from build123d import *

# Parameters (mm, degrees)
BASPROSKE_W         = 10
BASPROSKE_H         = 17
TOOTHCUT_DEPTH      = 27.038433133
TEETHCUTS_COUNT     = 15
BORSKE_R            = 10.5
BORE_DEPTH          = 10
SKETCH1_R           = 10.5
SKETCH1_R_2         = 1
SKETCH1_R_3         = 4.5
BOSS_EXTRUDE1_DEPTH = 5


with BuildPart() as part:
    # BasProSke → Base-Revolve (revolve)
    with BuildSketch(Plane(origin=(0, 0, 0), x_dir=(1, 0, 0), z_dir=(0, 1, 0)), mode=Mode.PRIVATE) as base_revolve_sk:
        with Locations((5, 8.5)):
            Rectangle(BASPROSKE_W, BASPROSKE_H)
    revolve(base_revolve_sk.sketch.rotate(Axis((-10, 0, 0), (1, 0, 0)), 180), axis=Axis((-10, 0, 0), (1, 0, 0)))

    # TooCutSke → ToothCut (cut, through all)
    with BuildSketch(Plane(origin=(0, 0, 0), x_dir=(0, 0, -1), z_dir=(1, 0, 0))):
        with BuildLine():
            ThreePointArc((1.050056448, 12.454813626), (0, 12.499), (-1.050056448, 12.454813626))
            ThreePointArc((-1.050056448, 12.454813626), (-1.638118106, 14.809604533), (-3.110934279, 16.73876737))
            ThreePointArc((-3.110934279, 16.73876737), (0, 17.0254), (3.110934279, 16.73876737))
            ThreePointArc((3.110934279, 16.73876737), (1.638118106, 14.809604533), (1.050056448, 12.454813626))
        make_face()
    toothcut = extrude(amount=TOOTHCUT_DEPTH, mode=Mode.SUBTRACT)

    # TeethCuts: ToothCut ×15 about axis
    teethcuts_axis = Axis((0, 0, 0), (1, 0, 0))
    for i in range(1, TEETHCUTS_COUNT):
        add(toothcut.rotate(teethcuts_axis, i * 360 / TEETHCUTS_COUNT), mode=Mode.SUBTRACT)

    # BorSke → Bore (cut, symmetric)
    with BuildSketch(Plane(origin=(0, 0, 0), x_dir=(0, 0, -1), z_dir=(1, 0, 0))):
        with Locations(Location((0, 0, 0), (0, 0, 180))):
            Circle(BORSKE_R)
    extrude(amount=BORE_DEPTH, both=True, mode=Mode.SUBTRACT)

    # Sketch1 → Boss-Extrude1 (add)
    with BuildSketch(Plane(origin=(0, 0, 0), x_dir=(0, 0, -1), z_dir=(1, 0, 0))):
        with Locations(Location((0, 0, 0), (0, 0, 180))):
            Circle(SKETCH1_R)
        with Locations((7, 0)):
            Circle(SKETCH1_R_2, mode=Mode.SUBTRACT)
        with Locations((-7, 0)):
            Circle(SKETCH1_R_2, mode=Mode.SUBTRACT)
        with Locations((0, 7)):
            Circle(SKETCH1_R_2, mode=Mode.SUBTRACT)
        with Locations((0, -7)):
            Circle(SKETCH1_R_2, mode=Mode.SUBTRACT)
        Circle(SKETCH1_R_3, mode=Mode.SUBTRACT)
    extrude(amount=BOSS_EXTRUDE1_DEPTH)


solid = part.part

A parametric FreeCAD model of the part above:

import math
import FreeCAD as App
import Part
import Sketcher
from FreeCAD import Vector
Q = App.Units.Quantity

doc = App.newDocument("Part")
body = doc.addObject("PartDesign::Body", "Body")

# Sketch on XZ plane
sketch1 = body.newObject("Sketcher::SketchObject", "Sketch")
sketch1.AttachmentSupport = (doc.getObject("XZ_Plane"), [""])
sketch1.MapMode = "FlatFace"
sketch1.addGeometry(Part.LineSegment(Vector(0, -17, 0), Vector(0, 0, 0)), False)
sketch1.addGeometry(Part.LineSegment(Vector(0, 0, 0), Vector(10, 0, 0)), False)
sketch1.addGeometry(Part.LineSegment(Vector(10, 0, 0), Vector(10, -17, 0)), False)
sketch1.addGeometry(Part.LineSegment(Vector(10, -17, 0), Vector(0, -17, 0)), False)
sketch1.addConstraint(Sketcher.Constraint("Coincident", 0, 2, 1, 1))
sketch1.addConstraint(Sketcher.Constraint("Coincident", 1, 2, 2, 1))
sketch1.addConstraint(Sketcher.Constraint("Coincident", 2, 2, 3, 1))
sketch1.addConstraint(Sketcher.Constraint("Coincident", 3, 2, 0, 1))
sketch1.addConstraint(Sketcher.Constraint("Vertical", 0))
sketch1.addConstraint(Sketcher.Constraint("Horizontal", 1))
sketch1.addConstraint(Sketcher.Constraint("Vertical", 2))
sketch1.addConstraint(Sketcher.Constraint("Horizontal", 3))
sketch1.addConstraint(Sketcher.Constraint("Coincident", 0, 2, -1, 1))
sketch1.addConstraint(Sketcher.Constraint("DistanceX", 1, 1, 1, 2, Q("10 mm")))
sketch1.addConstraint(Sketcher.Constraint("DistanceY", 0, 1, 0, 2, Q("17 mm")))
revolution = body.newObject("PartDesign::Revolution", "Revolution")
revolution.Profile = sketch1
revolution.ReferenceAxis = (sketch1, ["H_Axis"])
revolution.Angle = 360

# Sketch on YZ plane
sketch2 = body.newObject("Sketcher::SketchObject", "Sketch001")
sketch2.AttachmentSupport = (doc.getObject("YZ_Plane"), [""])
sketch2.MapMode = "FlatFace"
sketch2.addGeometry(Part.ArcOfCircle(Part.Circle(Vector(0, 0, 0), Vector(0, 0, 1), 12.5), math.radians(-4.82), math.radians(4.82)), False)
sketch2.addGeometry(Part.ArcOfCircle(Part.Circle(Vector(12.2, -7, 0), Vector(0, 0, 1), 6), math.radians(41), math.radians(88)), False)
sketch2.addGeometry(Part.ArcOfCircle(Part.Circle(Vector(0, 0, 0), Vector(0, 0, 1), 17), math.radians(-11), math.radians(11)), False)
sketch2.addGeometry(Part.ArcOfCircle(Part.Circle(Vector(12.2, 7, 0), Vector(0, 0, 1), 6), math.radians(-88), math.radians(-41)), False)
sketch2.addConstraint(Sketcher.Constraint("Coincident", 0, 1, 1, 2))
sketch2.addConstraint(Sketcher.Constraint("Coincident", 1, 1, 2, 1))
sketch2.addConstraint(Sketcher.Constraint("Coincident", 2, 2, 3, 2))
sketch2.addConstraint(Sketcher.Constraint("Coincident", 3, 1, 0, 2))
sketch2.addConstraint(Sketcher.Constraint("Coincident", 0, 3, -1, 1))
sketch2.addConstraint(Sketcher.Constraint("Coincident", 2, 3, -1, 1))
sketch2.addConstraint(Sketcher.Constraint("Equal", 1, 3))
sketch2.addConstraint(Sketcher.Constraint("Symmetric", 1, 3, 3, 3, -1))
sketch2.addConstraint(Sketcher.Constraint("Radius", 1, Q("6 mm")))
sketch2.addConstraint(Sketcher.Constraint("Radius", 0, Q("12.499 mm")))
sketch2.addConstraint(Sketcher.Constraint("Radius", 2, Q("17.0254 mm")))
sketch2.addConstraint(Sketcher.Constraint("DistanceY", 1, 3, 3, 3, Q("14.089999 mm")))
sketch2.addConstraint(Sketcher.Constraint("DistanceX", -1, 1, 1, 3, Q("12.208521 mm")))
pocket1 = body.newObject("PartDesign::Pocket", "Pocket")
pocket1.Profile = sketch2
pocket1.Type = "ThroughAll"
pocket1.Reversed = True
doc.recompute()

polarpattern = body.newObject("PartDesign::PolarPattern", "PolarPattern")
polarpattern.Originals = [pocket1]
polarpattern.Axis = (doc.getObject("X_Axis"), [""])
polarpattern.Angle = 360
polarpattern.Occurrences = 15
body.Tip = polarpattern

# Sketch on YZ plane
sketch3 = body.newObject("Sketcher::SketchObject", "Sketch002")
sketch3.AttachmentSupport = (doc.getObject("YZ_Plane"), [""])
sketch3.MapMode = "FlatFace"
sketch3.addGeometry(Part.Circle(Vector(0, 0, 0), Vector(0, 0, 1), 10), False)
sketch3.addConstraint(Sketcher.Constraint("Coincident", 0, 3, -1, 1))
sketch3.addConstraint(Sketcher.Constraint("Diameter", 0, Q("21 mm")))
pocket2 = body.newObject("PartDesign::Pocket", "Pocket001")
pocket2.Profile = sketch3
pocket2.Length = 20
pocket2.Midplane = True

# Sketch on YZ plane
sketch4 = body.newObject("Sketcher::SketchObject", "Sketch003")
sketch4.AttachmentSupport = (doc.getObject("YZ_Plane"), [""])
sketch4.MapMode = "FlatFace"
sketch4.addGeometry(Part.Circle(Vector(0, 0, 0), Vector(0, 0, 1), 10.5), False)
sketch4.addGeometry(Part.Circle(Vector(0, -7, 0), Vector(0, 0, 1), 1), False)
sketch4.addGeometry(Part.Circle(Vector(7, 0, 0), Vector(0, 0, 1), 1), False)
sketch4.addGeometry(Part.Circle(Vector(-7, 0, 0), Vector(0, 0, 1), 1), False)
sketch4.addGeometry(Part.Circle(Vector(0, 0, 0), Vector(0, 0, 1), 4.5), False)
sketch4.addGeometry(Part.Circle(Vector(0, 7, 0), Vector(0, 0, 1), 1), False)
sketch4.addConstraint(Sketcher.Constraint("Coincident", 0, 3, -1, 1))
sketch4.addConstraint(Sketcher.Constraint("Coincident", 4, 3, -1, 1))
sketch4.addConstraint(Sketcher.Constraint("Equal", 1, 2))
sketch4.addConstraint(Sketcher.Constraint("Equal", 2, 3))
sketch4.addConstraint(Sketcher.Constraint("Equal", 3, 5))
sketch4.addConstraint(Sketcher.Constraint("Symmetric", 2, 3, 3, 3, -1, 1))
sketch4.addConstraint(Sketcher.Constraint("Symmetric", 1, 3, 5, 3, -1, 1))
sketch4.addConstraint(Sketcher.Constraint("PointOnObject", 1, 3, -2))
sketch4.addConstraint(Sketcher.Constraint("PointOnObject", 2, 3, -1))
sketch4.addConstraint(Sketcher.Constraint("Diameter", 0, Q("21 mm")))
sketch4.addConstraint(Sketcher.Constraint("Diameter", 1, Q("2 mm")))
sketch4.addConstraint(Sketcher.Constraint("Diameter", 4, Q("9 mm")))
sketch4.addConstraint(Sketcher.Constraint("DistanceY", 1, 3, -1, 1, Q("7 mm")))
sketch4.addConstraint(Sketcher.Constraint("DistanceX", -1, 1, 2, 3, Q("7 mm")))
pad1 = body.newObject("PartDesign::Pad", "Pad")
pad1.Profile = sketch4
pad1.Length = 5

doc.recompute()
